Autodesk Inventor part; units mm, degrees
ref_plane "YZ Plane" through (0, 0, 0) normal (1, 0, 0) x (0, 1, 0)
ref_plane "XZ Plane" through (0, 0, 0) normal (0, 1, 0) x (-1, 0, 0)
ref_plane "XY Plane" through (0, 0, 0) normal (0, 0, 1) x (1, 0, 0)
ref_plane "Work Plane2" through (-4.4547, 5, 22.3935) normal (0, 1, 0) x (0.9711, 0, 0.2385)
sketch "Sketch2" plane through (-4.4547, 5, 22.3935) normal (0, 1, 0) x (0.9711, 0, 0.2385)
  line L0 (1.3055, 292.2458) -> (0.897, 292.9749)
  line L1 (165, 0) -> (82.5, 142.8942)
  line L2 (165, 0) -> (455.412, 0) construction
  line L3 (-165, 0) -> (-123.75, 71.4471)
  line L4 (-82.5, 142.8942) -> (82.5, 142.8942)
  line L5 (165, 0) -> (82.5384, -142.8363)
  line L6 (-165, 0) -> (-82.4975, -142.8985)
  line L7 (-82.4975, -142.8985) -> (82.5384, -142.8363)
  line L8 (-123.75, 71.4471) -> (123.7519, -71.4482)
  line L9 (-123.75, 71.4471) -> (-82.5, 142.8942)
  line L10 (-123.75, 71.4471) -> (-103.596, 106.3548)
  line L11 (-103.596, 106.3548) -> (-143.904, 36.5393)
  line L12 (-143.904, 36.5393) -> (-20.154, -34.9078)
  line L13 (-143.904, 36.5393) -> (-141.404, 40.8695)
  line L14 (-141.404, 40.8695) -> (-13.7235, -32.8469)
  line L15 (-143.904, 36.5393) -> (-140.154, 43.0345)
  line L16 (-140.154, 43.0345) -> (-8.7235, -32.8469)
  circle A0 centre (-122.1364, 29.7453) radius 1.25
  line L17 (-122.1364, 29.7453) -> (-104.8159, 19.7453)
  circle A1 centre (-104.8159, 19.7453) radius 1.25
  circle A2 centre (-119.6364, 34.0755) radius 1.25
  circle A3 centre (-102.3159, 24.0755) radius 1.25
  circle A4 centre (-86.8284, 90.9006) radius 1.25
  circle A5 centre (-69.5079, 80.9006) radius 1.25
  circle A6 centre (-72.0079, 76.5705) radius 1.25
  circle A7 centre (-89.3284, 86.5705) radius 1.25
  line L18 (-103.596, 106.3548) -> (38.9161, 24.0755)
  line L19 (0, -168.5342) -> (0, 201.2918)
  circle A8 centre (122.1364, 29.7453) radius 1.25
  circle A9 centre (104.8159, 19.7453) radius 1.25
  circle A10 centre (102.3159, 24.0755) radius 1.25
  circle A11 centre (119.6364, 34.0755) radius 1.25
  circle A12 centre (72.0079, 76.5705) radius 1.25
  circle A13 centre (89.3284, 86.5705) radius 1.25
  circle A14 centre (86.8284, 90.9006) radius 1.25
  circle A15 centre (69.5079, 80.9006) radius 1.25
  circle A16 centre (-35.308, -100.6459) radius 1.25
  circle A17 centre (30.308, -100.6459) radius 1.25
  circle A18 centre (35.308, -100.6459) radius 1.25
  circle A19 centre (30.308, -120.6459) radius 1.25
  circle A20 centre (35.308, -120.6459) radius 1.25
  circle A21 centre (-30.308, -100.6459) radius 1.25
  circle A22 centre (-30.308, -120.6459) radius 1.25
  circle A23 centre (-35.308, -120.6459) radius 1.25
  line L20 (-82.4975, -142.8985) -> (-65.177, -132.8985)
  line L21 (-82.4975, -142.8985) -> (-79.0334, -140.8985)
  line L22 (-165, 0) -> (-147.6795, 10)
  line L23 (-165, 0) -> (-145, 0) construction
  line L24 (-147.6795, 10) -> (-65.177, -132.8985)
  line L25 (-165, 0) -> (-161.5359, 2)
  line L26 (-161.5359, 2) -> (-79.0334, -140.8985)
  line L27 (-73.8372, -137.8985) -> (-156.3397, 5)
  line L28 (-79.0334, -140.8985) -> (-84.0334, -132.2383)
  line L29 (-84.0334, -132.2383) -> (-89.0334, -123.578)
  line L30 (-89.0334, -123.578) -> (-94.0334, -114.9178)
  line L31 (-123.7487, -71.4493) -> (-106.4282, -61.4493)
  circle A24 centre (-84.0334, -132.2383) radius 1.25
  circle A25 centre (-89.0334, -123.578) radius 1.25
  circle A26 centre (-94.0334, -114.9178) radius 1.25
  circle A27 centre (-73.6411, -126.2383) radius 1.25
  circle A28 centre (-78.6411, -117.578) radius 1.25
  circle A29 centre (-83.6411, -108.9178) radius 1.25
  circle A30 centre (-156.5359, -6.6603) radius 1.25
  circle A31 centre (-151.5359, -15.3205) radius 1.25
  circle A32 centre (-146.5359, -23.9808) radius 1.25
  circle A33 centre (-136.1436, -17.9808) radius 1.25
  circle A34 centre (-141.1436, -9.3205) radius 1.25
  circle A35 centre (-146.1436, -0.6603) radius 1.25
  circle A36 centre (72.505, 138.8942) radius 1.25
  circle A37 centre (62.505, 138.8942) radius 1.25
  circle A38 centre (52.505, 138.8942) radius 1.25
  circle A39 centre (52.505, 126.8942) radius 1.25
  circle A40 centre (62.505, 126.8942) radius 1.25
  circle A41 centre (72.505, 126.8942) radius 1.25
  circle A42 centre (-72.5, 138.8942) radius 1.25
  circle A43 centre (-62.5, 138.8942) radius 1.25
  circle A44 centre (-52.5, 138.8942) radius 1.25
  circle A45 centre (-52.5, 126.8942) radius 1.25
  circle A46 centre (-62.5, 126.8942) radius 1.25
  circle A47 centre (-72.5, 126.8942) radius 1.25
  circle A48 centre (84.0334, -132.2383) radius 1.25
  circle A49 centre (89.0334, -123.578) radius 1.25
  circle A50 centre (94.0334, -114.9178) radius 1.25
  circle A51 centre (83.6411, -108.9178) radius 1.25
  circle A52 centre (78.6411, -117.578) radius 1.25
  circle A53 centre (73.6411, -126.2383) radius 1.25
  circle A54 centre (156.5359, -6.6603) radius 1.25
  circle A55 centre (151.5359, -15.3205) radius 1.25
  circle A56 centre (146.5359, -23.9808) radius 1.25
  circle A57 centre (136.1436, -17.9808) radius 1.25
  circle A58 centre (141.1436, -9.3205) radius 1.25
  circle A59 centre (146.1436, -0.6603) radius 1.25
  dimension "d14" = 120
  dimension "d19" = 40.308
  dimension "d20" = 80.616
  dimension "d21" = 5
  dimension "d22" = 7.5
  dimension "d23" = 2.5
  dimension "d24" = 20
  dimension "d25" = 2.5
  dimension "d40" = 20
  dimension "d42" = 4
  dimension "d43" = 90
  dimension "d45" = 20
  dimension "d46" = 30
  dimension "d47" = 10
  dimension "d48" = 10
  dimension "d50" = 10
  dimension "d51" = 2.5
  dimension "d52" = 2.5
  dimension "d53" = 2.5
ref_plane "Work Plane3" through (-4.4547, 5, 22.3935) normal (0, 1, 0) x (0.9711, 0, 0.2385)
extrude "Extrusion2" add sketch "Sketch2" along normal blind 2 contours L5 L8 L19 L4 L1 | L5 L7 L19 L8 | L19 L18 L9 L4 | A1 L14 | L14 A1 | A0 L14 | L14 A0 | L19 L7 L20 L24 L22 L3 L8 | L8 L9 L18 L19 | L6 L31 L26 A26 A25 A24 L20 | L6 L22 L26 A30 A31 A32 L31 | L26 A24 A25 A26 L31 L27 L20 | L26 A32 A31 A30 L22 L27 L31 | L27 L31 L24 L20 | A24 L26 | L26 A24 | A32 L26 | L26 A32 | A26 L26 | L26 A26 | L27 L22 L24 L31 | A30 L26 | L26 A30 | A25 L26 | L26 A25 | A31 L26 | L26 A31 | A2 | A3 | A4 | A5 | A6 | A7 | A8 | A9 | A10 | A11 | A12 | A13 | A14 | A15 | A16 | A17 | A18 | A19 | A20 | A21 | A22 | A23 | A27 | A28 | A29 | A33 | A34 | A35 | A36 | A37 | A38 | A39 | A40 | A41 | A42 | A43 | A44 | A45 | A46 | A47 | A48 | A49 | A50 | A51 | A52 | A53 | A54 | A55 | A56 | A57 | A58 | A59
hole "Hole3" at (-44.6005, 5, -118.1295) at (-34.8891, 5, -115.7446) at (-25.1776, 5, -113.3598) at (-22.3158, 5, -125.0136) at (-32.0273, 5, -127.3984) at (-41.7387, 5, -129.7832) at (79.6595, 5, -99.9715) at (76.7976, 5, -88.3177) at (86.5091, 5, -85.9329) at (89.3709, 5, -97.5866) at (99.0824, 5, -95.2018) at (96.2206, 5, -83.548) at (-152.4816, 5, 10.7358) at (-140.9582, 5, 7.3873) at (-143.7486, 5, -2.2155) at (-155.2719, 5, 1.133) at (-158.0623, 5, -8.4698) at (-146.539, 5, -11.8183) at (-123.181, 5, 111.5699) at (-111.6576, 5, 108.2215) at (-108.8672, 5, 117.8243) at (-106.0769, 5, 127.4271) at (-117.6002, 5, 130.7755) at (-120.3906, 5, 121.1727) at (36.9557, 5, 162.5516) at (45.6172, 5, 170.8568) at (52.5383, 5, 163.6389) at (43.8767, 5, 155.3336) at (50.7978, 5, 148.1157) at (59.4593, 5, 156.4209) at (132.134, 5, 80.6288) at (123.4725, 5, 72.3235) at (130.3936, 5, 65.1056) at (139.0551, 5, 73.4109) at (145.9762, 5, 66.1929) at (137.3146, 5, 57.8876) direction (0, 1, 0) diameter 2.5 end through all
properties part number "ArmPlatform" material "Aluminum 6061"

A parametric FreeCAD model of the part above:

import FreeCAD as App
import Part
import Sketcher

V = App.Vector


def add_polygon(sketch, points):
    """Adds a closed chain of lines whose ends are joined by coincident constraints."""
    first, n = sketch.GeometryCount, len(points)
    for a, b in zip(points, points[1:] + points[:1]):
        sketch.addGeometry(Part.LineSegment(App.Vector(*a, 0), App.Vector(*b, 0)), False)
    for i in range(n):
        sketch.addConstraint(Sketcher.Constraint("Coincident", first + i, 2, first + (i + 1) % n, 1))

doc = App.newDocument("Part")
params = doc.addObject("Spreadsheet::Sheet", "Params")
for row, (alias, value) in enumerate([
    ("sketch1_length", "165 mm"),
    ("sketch1_length2", "165 mm"),
    ("pad1_length", "2 mm"),
    ("sketch2_diameter", "2.5 mm"),
    ("hole_diameter", "2.5 mm"),
], start=1):
    params.set(f"A{row}", alias)
    params.set(f"B{row}", "=" + value)
    params.setAlias(f"B{row}", alias)

body = doc.addObject("PartDesign::Body", "Body")

sketch1 = body.newObject("Sketcher::SketchObject", "Sketch")
sketch1.AttachmentSupport = (doc.getObject("XZ_Plane"), [""])
sketch1.MapMode = "FlatFace"
sketch1.AttachmentOffset = App.Placement(V(0, 0, -5), App.Rotation())
add_polygon(sketch1, [(155.783413, 61.747624), (109.74603, -96.699723), (-50.492083, -136.053847), (-132.030014, -51.022755), (-164.692813, -16.960624), (-118.654028, 141.491495), (41.633785, 180.793777)])
sketch1.addConstraint([
    Sketcher.Constraint("Distance", 0, 165.0),
    Sketcher.Constraint("Distance", 1, 165.0),
    Sketcher.Constraint("DistanceX", 4, 2, 0, 2, 228.4),
    Sketcher.Constraint("DistanceX", 2, 2, -1, 1, 132.03),
    Sketcher.Constraint("Distance", 2, 117.808),
    Sketcher.Constraint("Distance", 3, 47.192),
    Sketcher.Constraint("Distance", 4, 165.005),
    Sketcher.Constraint("Distance", 5, 165.036),
    Sketcher.Constraint("DistanceX", -1, 1, 0, 2, 109.746),
    Sketcher.Constraint("DistanceX", 1, 2, -1, 1, 50.492),
    Sketcher.Constraint("DistanceY", 0, 2, 3, 2, 79.739),
    Sketcher.Constraint("Distance", 6, 164.9307),
    Sketcher.Constraint("DistanceY", 0, 2, -1, 1, 96.6997),
    Sketcher.Constraint("DistanceX", -1, 1, 5, 2, 41.6338),
])
sketch1.setExpression("Constraints[7]", "Params.sketch1_length")
sketch1.setExpression("Constraints[8]", "Params.sketch1_length2")
pad1 = body.newObject("PartDesign::Pad", "Pad")
pad1.Profile = sketch1
pad1.setExpression("Length", "Params.pad1_length")
pad1.Reversed = True

sketch2 = body.newObject("Sketcher::SketchObject", "Sketch001")
sketch2.AttachmentSupport = (doc.getObject("XZ_Plane"), [""])
sketch2.MapMode = "FlatFace"
sketch2.AttachmentOffset = App.Placement(V(0, 0, -5), App.Rotation())
sketch2.addGeometry([
    Part.Circle(V(-44.6, -118.1, 0), V(0, 0, 1), 1.2),
    Part.Circle(V(-34.9, -115.7, 0), V(0, 0, 1), 1.2),
    Part.Circle(V(-25.2, -113.4, 0), V(0, 0, 1), 1.2),
    Part.Circle(V(-22.3, -125, 0), V(0, 0, 1), 1.2),
    Part.Circle(V(-32, -127.4, 0), V(0, 0, 1), 1.2),
    Part.Circle(V(-41.7, -129.8, 0), V(0, 0, 1), 1.2),
    Part.Circle(V(79.7, -100, 0), V(0, 0, 1), 1.2),
    Part.Circle(V(76.8, -88.3, 0), V(0, 0, 1), 1.2),
    Part.Circle(V(86.5, -85.9, 0), V(0, 0, 1), 1.2),
    Part.Circle(V(89.4, -97.6, 0), V(0, 0, 1), 1.2),
    Part.Circle(V(99.1, -95.2, 0), V(0, 0, 1), 1.2),
    Part.Circle(V(96.2, -83.5, 0), V(0, 0, 1), 1.2),
    Part.Circle(V(-152.5, 10.7, 0), V(0, 0, 1), 1.2),
    Part.Circle(V(-141, 7.4, 0), V(0, 0, 1), 1.2),
    Part.Circle(V(-143.7, -2.2, 0), V(0, 0, 1), 1.2),
    Part.Circle(V(-155.3, 1.1, 0), V(0, 0, 1), 1.2),
    Part.Circle(V(-158.1, -8.5, 0), V(0, 0, 1), 1.2),
    Part.Circle(V(-146.5, -11.8, 0), V(0, 0, 1), 1.2),
    Part.Circle(V(-123.2, 111.6, 0), V(0, 0, 1), 1.2),
    Part.Circle(V(-111.7, 108.2, 0), V(0, 0, 1), 1.2),
    Part.Circle(V(-108.9, 117.8, 0), V(0, 0, 1), 1.2),
    Part.Circle(V(-106.1, 127.4, 0), V(0, 0, 1), 1.2),
    Part.Circle(V(-117.6, 130.8, 0), V(0, 0, 1), 1.2),
    Part.Circle(V(-120.4, 121.2, 0), V(0, 0, 1), 1.2),
    Part.Circle(V(37, 162.6, 0), V(0, 0, 1), 1.2),
    Part.Circle(V(45.6, 170.9, 0), V(0, 0, 1), 1.2),
    Part.Circle(V(52.5, 163.6, 0), V(0, 0, 1), 1.2),
    Part.Circle(V(43.9, 155.3, 0), V(0, 0, 1), 1.2),
    Part.Circle(V(50.8, 148.1, 0), V(0, 0, 1), 1.2),
    Part.Circle(V(59.5, 156.4, 0), V(0, 0, 1), 1.2),
    Part.Circle(V(132.1, 80.6, 0), V(0, 0, 1), 1.2),
    Part.Circle(V(123.5, 72.3, 0), V(0, 0, 1), 1.2),
    Part.Circle(V(130.4, 65.1, 0), V(0, 0, 1), 1.2),
    Part.Circle(V(139.1, 73.4, 0), V(0, 0, 1), 1.2),
    Part.Circle(V(146, 66.2, 0), V(0, 0, 1), 1.2),
    Part.Circle(V(137.3, 57.9, 0), V(0, 0, 1), 1.2),
], False)
sketch2.addConstraint([
    Sketcher.Constraint("Equal", 0, 1),
    Sketcher.Constraint("Equal", 1, 2),
    Sketcher.Constraint("Equal", 2, 3),
    Sketcher.Constraint("Equal", 3, 4),
    Sketcher.Constraint("Equal", 4, 5),
    Sketcher.Constraint("Equal", 5, 6),
    Sketcher.Constraint("Equal", 6, 7),
    Sketcher.Constraint("Equal", 7, 8),
    Sketcher.Constraint("Equal", 8, 9),
    Sketcher.Constraint("Equal", 9, 10),
    Sketcher.Constraint("Equal", 10, 11),
    Sketcher.Constraint("Equal", 11, 12),
    Sketcher.Constraint("Equal", 12, 13),
    Sketcher.Constraint("Equal", 13, 14),
    Sketcher.Constraint("Equal", 14, 15),
    Sketcher.Constraint("Equal", 15, 16),
    Sketcher.Constraint("Equal", 16, 17),
    Sketcher.Constraint("Equal", 17, 18),
    Sketcher.Constraint("Equal", 18, 19),
    Sketcher.Constraint("Equal", 19, 20),
    Sketcher.Constraint("Equal", 20, 21),
    Sketcher.Constraint("Equal", 21, 22),
    Sketcher.Constraint("Equal", 22, 23),
    Sketcher.Constraint("Equal", 23, 24),
    Sketcher.Constraint("Equal", 24, 25),
    Sketcher.Constraint("Equal", 25, 26),
    Sketcher.Constraint("Equal", 26, 27),
    Sketcher.Constraint("Equal", 27, 28),
    Sketcher.Constraint("Equal", 28, 29),
    Sketcher.Constraint("Equal", 29, 30),
    Sketcher.Constraint("Equal", 30, 31),
    Sketcher.Constraint("Equal", 31, 32),
    Sketcher.Constraint("Equal", 32, 33),
    Sketcher.Constraint("Equal", 33, 34),
    Sketcher.Constraint("Equal", 34, 35),
    Sketcher.Constraint("Diameter", 0, 2.5),
    Sketcher.Constraint("DistanceY", -1, 1, 18, 3, 111.57),
    Sketcher.Constraint("DistanceY", 19, 3, 24, 3, 54.33),
    Sketcher.Constraint("DistanceY", 30, 3, 26, 3, 83.01),
    Sketcher.Constraint("DistanceY", 31, 3, 27, 3, 83.01),
    Sketcher.Constraint("DistanceY", 32, 3, 28, 3, 83.01),
    Sketcher.Constraint("DistanceY", 33, 3, 29, 3, 83.01),
    Sketcher.Constraint("DistanceX", 1, 3, -1, 1, 34.889),
    Sketcher.Constraint("DistanceX", -1, 1, 8, 3, 86.509),
    Sketcher.Constraint("DistanceY", 8, 3, -1, 1, 85.933),
    Sketcher.Constraint("DistanceX", -1, 1, 9, 3, 89.371),
    Sketcher.Constraint("DistanceY", 11, 3, -1, 1, 83.548),
    Sketcher.Constraint("DistanceX", 15, 3, -1, 1, 155.272),
    Sketcher.Constraint("DistanceY", -1, 1, 15, 3, 1.133),
    Sketcher.Constraint("DistanceX", 17, 3, -1, 1, 146.539),
    Sketcher.Constraint("DistanceX", 18, 3, -1, 1, 123.181),
    Sketcher.Constraint("DistanceX", 21, 3, -1, 1, 106.077),
    Sketcher.Constraint("DistanceY", -1, 1, 21, 3, 127.427),
    Sketcher.Constraint("DistanceY", -1, 1, 26, 3, 163.639),
    Sketcher.Constraint("DistanceY", -1, 1, 29, 3, 156.421),
    Sketcher.Constraint("DistanceX", -1, 1, 30, 3, 132.134),
    Sketcher.Constraint("DistanceX", -1, 1, 33, 3, 139.055),
    Sketcher.Constraint("DistanceY", -1, 1, 34, 3, 66.193),
    Sketcher.Constraint("DistanceY", 0, 3, 1, 3, 2.385),
    Sketcher.Constraint("DistanceX", 0, 3, 2, 3, 19.423),
    Sketcher.Constraint("DistanceY", 3, 3, 1, 3, 9.269),
    Sketcher.Constraint("DistanceY", 4, 3, 0, 3, 9.269),
    Sketcher.Constraint("DistanceX", 5, 3, 3, 3, 19.423),
    Sketcher.Constraint("DistanceX", 5, 3, 2, 3, 16.561),
    Sketcher.Constraint("DistanceY", 3, 3, 6, 3, 25.042),
    Sketcher.Constraint("DistanceX", 2, 3, 6, 3, 104.837),
    Sketcher.Constraint("DistanceX", 7, 3, 6, 3, 2.862),
    Sketcher.Constraint("DistanceY", 2, 3, 7, 3, 25.042),
    Sketcher.Constraint("DistanceY", 3, 3, 7, 3, 36.696),
    Sketcher.Constraint("DistanceX", 4, 3, 7, 3, 108.825),
    Sketcher.Constraint("DistanceY", 2, 3, 8, 3, 27.427),
    Sketcher.Constraint("DistanceX", 3, 3, 8, 3, 108.825),
    Sketcher.Constraint("DistanceY", 6, 3, 9, 3, 2.385),
    Sketcher.Constraint("DistanceY", 10, 3, 8, 3, 9.269),
    Sketcher.Constraint("DistanceX", 6, 3, 10, 3, 19.423),
    Sketcher.Constraint("DistanceX", 7, 3, 11, 3, 19.423),
    Sketcher.Constraint("DistanceX", 12, 3, 0, 3, 107.881),
    Sketcher.Constraint("DistanceY", 5, 3, 12, 3, 140.519),
    Sketcher.Constraint("DistanceX", 13, 3, 1, 3, 106.069),
    Sketcher.Constraint("DistanceY", 1, 3, 13, 3, 123.132),
    Sketcher.Constraint("DistanceX", 12, 3, 14, 3, 8.733),
    Sketcher.Constraint("DistanceY", 0, 3, 14, 3, 115.914),
    Sketcher.Constraint("DistanceX", 16, 3, 13, 3, 17.104),
    Sketcher.Constraint("DistanceY", 16, 3, 13, 3, 15.857),
    Sketcher.Constraint("DistanceY", 17, 3, 12, 3, 22.554),
    Sketcher.Constraint("DistanceY", 12, 3, 18, 3, 100.834),
    Sketcher.Constraint("DistanceX", 12, 3, 19, 3, 40.824),
    Sketcher.Constraint("DistanceY", 14, 3, 19, 3, 110.437),
    Sketcher.Constraint("DistanceX", 13, 3, 20, 3, 32.091),
    Sketcher.Constraint("DistanceY", 13, 3, 20, 3, 110.437),
    Sketcher.Constraint("DistanceX", 22, 3, 20, 3, 8.733),
    Sketcher.Constraint("DistanceY", 19, 3, 22, 3, 22.554),
    Sketcher.Constraint("DistanceX", 23, 3, 19, 3, 8.733),
    Sketcher.Constraint("DistanceX", 20, 3, 24, 3, 145.823),
    Sketcher.Constraint("DistanceY", 23, 3, 24, 3, 41.379),
    Sketcher.Constraint("DistanceX", 21, 3, 25, 3, 151.694),
    Sketcher.Constraint("DistanceX", 25, 3, 26, 3, 6.921),
    Sketcher.Constraint("DistanceY", 26, 3, 25, 3, 7.218),
    Sketcher.Constraint("DistanceX", 24, 3, 27, 3, 6.921),
    Sketcher.Constraint("DistanceY", 27, 3, 24, 3, 7.218),
    Sketcher.Constraint("DistanceX", 27, 3, 28, 3, 6.921),
    Sketcher.Constraint("DistanceY", 28, 3, 27, 3, 7.218),
    Sketcher.Constraint("DistanceX", 26, 3, 29, 3, 6.921),
    Sketcher.Constraint("DistanceX", 31, 3, 32, 3, 6.921),
    Sketcher.Constraint("DistanceX", 27, 3, 32, 3, 86.517),
    Sketcher.Constraint("DistanceX", 33, 3, 34, 3, 6.921),
    Sketcher.Constraint("DistanceX", 32, 3, 35, 3, 6.921),
    Sketcher.Constraint("DistanceY", 35, 3, 32, 3, 7.218),
])
sketch2.setExpression("Constraints[35]", "Params.sketch2_diameter")
doc.recompute()
hole = body.newObject("PartDesign::Hole", "Hole")
hole.Profile = sketch2
hole.ThreadType = "None"
hole.setExpression("Diameter", "Params.hole_diameter")
hole.DepthType = "ThroughAll"

doc.recompute()
